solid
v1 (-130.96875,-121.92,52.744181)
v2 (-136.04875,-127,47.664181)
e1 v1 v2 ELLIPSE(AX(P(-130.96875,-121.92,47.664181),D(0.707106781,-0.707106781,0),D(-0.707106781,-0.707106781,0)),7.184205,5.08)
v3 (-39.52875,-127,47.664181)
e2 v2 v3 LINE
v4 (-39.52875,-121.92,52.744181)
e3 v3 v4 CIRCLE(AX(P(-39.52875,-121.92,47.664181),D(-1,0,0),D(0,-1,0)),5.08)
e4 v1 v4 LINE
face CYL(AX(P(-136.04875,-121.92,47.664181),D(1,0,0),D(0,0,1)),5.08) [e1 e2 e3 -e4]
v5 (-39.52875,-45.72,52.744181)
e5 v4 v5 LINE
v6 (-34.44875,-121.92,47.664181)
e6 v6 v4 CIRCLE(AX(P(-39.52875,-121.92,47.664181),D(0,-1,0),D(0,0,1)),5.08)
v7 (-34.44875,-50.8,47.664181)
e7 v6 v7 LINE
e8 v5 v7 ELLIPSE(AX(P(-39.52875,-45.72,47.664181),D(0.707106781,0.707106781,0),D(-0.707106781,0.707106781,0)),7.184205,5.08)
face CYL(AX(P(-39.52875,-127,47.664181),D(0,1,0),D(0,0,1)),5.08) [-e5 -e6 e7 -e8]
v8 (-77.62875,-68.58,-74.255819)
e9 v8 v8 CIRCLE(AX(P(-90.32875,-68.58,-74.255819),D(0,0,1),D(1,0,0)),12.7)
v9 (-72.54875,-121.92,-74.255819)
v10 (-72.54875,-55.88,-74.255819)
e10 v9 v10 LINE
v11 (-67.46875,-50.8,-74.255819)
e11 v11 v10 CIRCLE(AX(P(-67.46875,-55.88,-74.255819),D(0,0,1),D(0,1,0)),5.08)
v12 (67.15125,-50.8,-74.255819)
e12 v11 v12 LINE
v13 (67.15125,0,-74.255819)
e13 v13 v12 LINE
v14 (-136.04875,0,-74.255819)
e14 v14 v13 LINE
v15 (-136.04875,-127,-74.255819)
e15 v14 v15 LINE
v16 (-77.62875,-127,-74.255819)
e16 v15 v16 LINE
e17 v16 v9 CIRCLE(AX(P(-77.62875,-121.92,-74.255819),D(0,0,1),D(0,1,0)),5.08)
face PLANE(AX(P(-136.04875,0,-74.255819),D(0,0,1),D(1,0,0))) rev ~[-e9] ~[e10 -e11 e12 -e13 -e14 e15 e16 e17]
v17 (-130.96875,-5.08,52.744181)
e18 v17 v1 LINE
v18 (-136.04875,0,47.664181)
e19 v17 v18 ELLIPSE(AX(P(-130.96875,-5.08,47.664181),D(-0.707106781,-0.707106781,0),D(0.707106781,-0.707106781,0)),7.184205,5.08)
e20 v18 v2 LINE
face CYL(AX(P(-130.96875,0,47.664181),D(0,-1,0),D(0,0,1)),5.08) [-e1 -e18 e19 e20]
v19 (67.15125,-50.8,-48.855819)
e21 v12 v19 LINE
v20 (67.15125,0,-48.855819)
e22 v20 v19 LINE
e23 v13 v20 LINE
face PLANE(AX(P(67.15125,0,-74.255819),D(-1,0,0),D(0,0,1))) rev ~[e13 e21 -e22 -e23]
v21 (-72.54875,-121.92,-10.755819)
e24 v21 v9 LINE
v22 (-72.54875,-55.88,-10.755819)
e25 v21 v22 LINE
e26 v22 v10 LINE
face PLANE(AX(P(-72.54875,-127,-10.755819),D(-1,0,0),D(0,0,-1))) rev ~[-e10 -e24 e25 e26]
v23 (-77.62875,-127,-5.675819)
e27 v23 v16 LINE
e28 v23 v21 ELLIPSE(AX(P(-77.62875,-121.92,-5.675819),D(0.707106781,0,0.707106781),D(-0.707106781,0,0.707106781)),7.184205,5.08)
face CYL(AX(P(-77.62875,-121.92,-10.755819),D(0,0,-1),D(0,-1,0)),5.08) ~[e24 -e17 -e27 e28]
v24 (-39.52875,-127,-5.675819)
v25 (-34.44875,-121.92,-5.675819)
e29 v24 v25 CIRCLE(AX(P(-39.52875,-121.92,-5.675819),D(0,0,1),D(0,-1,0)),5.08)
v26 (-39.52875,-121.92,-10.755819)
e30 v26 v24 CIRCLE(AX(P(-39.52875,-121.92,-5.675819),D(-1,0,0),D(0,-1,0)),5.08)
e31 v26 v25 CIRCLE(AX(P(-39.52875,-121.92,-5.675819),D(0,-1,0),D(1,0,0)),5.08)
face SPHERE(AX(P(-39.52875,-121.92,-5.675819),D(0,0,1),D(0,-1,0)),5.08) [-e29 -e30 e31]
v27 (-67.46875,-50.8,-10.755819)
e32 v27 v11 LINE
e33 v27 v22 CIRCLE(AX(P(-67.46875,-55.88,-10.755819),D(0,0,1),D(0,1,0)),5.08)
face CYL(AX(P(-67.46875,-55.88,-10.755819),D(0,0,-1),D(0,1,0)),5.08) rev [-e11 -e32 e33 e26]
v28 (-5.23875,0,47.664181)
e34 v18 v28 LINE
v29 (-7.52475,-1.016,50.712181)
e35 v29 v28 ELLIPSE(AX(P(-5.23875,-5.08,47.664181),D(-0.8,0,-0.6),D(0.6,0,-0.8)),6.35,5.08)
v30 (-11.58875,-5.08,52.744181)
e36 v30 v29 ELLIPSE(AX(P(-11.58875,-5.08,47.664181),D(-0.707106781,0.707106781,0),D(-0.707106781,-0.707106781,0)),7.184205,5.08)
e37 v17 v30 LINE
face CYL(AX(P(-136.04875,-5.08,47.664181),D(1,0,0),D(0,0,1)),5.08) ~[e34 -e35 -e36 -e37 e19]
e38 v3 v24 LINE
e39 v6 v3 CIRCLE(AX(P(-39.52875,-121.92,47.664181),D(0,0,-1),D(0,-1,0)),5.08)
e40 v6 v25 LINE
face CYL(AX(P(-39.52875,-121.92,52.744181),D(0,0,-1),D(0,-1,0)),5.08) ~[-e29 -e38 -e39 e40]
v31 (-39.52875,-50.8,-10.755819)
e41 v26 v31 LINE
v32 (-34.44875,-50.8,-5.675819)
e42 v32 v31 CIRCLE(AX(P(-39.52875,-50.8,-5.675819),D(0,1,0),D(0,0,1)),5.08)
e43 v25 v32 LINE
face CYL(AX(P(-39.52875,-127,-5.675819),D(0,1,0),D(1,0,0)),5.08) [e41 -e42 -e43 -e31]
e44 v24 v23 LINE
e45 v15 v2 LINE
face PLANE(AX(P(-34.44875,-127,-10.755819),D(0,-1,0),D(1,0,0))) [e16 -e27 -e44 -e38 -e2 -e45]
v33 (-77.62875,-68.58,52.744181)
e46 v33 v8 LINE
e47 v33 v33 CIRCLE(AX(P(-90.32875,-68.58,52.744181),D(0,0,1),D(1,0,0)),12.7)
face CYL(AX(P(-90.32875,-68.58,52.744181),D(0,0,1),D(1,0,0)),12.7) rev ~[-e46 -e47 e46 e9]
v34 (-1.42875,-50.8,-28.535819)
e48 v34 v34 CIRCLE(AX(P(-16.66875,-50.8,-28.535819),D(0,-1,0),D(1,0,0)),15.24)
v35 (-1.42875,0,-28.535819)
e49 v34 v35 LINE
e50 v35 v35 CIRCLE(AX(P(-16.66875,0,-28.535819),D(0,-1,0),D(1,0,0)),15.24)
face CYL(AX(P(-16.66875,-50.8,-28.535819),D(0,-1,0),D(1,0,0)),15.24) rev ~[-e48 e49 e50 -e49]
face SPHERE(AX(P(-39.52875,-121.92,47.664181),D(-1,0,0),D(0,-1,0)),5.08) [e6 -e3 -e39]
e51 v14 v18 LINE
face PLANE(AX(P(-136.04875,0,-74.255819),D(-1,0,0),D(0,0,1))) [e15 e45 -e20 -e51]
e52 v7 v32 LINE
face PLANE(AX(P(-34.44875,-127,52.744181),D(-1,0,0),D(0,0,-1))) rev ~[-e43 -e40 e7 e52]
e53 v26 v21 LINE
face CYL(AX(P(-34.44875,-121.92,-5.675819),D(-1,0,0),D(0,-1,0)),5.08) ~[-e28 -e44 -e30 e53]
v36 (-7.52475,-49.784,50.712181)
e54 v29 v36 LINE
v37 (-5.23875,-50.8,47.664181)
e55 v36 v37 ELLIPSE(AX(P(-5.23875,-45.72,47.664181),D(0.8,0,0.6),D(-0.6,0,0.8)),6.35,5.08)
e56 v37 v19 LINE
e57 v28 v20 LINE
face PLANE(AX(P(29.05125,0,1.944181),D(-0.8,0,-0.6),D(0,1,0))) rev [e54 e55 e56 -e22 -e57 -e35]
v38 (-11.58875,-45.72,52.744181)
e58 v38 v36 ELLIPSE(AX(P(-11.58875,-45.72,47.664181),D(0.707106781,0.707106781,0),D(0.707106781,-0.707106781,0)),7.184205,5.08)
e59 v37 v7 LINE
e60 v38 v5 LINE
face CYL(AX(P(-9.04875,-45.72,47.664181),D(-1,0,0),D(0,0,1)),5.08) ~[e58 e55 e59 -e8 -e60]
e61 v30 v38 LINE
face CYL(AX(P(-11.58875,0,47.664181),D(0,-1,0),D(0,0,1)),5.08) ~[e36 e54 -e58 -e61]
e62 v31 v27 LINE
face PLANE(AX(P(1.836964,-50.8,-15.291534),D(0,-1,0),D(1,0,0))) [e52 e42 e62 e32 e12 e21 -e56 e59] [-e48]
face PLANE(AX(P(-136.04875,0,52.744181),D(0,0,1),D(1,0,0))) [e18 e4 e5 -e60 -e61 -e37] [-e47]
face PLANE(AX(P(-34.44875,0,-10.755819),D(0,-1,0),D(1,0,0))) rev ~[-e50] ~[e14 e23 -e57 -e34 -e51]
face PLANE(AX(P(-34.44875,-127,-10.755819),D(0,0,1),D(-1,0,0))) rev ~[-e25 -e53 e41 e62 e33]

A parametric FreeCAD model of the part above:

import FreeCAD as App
import Part
import Sketcher
Q = App.Units.Quantity


def edges_at(feature, points):
    """Names of the edges that pass closest to the given points."""
    edges = feature.Shape.Edges
    near = lambda p: min(range(len(edges)), key=lambda i: edges[i].distToShape(Part.Vertex(*p))[0])
    return sorted({f"Edge{near(p) + 1}" for p in points})


def add_polygon(sketch, points):
    """Adds a closed chain of lines whose ends are joined by coincident constraints."""
    first, n = sketch.GeometryCount, len(points)
    for a, b in zip(points, points[1:] + points[:1]):
        sketch.addGeometry(Part.LineSegment(App.Vector(*a, 0), App.Vector(*b, 0)), False)
    for i in range(n):
        sketch.addConstraint(Sketcher.Constraint("Coincident", first + i, 2, first + (i + 1) % n, 1))

doc = App.newDocument("Part")
body = doc.addObject("PartDesign::Body", "Body")

sketch1 = body.newObject("Sketcher::SketchObject", "Sketch")
sketch1.AttachmentSupport = (doc.getObject("XZ_Plane"), [""])
sketch1.MapMode = "FlatFace"
add_polygon(sketch1, [(-136, 53), (-136, -74), (67, -74), (67, 53)])
sketch1.addConstraint([
    Sketcher.Constraint("Vertical", 0),
    Sketcher.Constraint("Horizontal", 1),
    Sketcher.Constraint("Vertical", 2),
    Sketcher.Constraint("Horizontal", 3),
    Sketcher.Constraint("DistanceX", 1, 1, 1, 2, Q("8 in")),
    Sketcher.Constraint("DistanceY", 0, 2, 0, 1, Q("5 in")),
    Sketcher.Constraint("DistanceX", 0, 2, -1, 1, Q("136.04875 mm")),
    Sketcher.Constraint("DistanceY", 0, 2, -1, 1, Q("74.255819 mm")),
])
pad1 = body.newObject("PartDesign::Pad", "Pad")
pad1.Profile = sketch1
pad1.Length = Q("5 in")

sketch2 = body.newObject("Sketcher::SketchObject", "Sketch001")
sketch2.AttachmentSupport = (doc.getObject("XZ_Plane"), [""])
sketch2.MapMode = "FlatFace"
sketch2.AttachmentOffset = App.Placement(App.Vector(0, 0, 5 * 25.4), App.Rotation())
add_polygon(sketch2, [(67, 53), (-34, 53), (-34, -11), (-73, -11), (-73, -74), (67, -74)])
sketch2.addConstraint([
    Sketcher.Constraint("Horizontal", 0),
    Sketcher.Constraint("Vertical", 1),
    Sketcher.Constraint("Horizontal", 2),
    Sketcher.Constraint("Vertical", 3),
    Sketcher.Constraint("Horizontal", 4),
    Sketcher.Constraint("Vertical", 5),
    Sketcher.Constraint("Equal", 1, 3),
    Sketcher.Constraint("DistanceX", 0, 2, 0, 1, Q("4 in")),
    Sketcher.Constraint("DistanceY", 5, 1, 5, 2, Q("5 in")),
    Sketcher.Constraint("DistanceX", 2, 2, 2, 1, Q("1.5 in")),
    Sketcher.Constraint("DistanceX", 0, 2, -1, 1, Q("34.44875 mm")),
    Sketcher.Constraint("DistanceY", -1, 1, 0, 2, Q("52.744181 mm")),
])
pocket1 = body.newObject("PartDesign::Pocket", "Pocket")
pocket1.Profile = sketch2
pocket1.Length = Q("3 in")
doc.recompute()

chamfer = body.newObject("PartDesign::Chamfer", "Chamfer")
chamfer.Base = (pocket1, edges_at(pocket1, [(67.151, -25.4, 52.744)]))
chamfer.ChamferType = "Two distances"
chamfer.Size = Q("3 in")
chamfer.Size2 = Q("4 in")
doc.recompute()

fillet = body.newObject("PartDesign::Fillet", "Fillet")
fillet.Base = (chamfer, edges_at(chamfer, [
    (-136.049, -63.5, 52.744),
    (-85.249, -127, 52.744),
    (-34.449, -127, 20.994),
    (-53.499, -127, -10.756),
    (-72.549, -127, -42.506),
    (-72.549, -50.8, -42.506),
    (-34.449, -88.9, -10.756),
    (-34.449, -88.9, 52.744),
    (-21.749, -50.8, 52.744),
    (-72.549, 0, 52.744),
    (-9.049, -25.4, 52.744),
]))
fillet.Radius = Q("0.2 in")

sketch3 = body.newObject("Sketcher::SketchObject", "Sketch002")
sketch3.AttachmentSupport = (doc.getObject("XZ_Plane"), [""])
sketch3.MapMode = "FlatFace"
sketch3.AttachmentOffset = App.Placement(App.Vector(0, 0, 2 * 25.4), App.Rotation())
sketch3.addGeometry(Part.Circle(App.Vector(-17, -29, 0), App.Vector(0, 0, 1), 15), False)
sketch3.addConstraint([
    Sketcher.Constraint("Diameter", 0, Q("1.2 in")),
    Sketcher.Constraint("DistanceX", 0, 3, -1, 1, Q("0.65625 in")),
    Sketcher.Constraint("DistanceY", 0, 3, -1, 1, Q("28.535819 mm")),
])
pocket2 = body.newObject("PartDesign::Pocket", "Pocket001")
pocket2.Profile = sketch3
pocket2.Type = "ThroughAll"

sketch4 = body.newObject("Sketcher::SketchObject", "Sketch003")
sketch4.AttachmentSupport = (doc.getObject("XY_Plane"), [""])
sketch4.MapMode = "FlatFace"
sketch4.AttachmentOffset = App.Placement(App.Vector(0, 0, 52.744181), App.Rotation())
sketch4.addGeometry(Part.Circle(App.Vector(-90, -69, 0), App.Vector(0, 0, 1), 13), False)
sketch4.addConstraint([
    Sketcher.Constraint("Diameter", 0, Q("1 in")),
    Sketcher.Constraint("DistanceY", 0, 3, -1, 1, Q("2.7 in")),
    Sketcher.Constraint("DistanceX", 0, 3, -1, 1, Q("90.32875 mm")),
])
pocket3 = body.newObject("PartDesign::Pocket", "Pocket002")
pocket3.Profile = sketch4
pocket3.Type = "ThroughAll"

doc.recompute()
